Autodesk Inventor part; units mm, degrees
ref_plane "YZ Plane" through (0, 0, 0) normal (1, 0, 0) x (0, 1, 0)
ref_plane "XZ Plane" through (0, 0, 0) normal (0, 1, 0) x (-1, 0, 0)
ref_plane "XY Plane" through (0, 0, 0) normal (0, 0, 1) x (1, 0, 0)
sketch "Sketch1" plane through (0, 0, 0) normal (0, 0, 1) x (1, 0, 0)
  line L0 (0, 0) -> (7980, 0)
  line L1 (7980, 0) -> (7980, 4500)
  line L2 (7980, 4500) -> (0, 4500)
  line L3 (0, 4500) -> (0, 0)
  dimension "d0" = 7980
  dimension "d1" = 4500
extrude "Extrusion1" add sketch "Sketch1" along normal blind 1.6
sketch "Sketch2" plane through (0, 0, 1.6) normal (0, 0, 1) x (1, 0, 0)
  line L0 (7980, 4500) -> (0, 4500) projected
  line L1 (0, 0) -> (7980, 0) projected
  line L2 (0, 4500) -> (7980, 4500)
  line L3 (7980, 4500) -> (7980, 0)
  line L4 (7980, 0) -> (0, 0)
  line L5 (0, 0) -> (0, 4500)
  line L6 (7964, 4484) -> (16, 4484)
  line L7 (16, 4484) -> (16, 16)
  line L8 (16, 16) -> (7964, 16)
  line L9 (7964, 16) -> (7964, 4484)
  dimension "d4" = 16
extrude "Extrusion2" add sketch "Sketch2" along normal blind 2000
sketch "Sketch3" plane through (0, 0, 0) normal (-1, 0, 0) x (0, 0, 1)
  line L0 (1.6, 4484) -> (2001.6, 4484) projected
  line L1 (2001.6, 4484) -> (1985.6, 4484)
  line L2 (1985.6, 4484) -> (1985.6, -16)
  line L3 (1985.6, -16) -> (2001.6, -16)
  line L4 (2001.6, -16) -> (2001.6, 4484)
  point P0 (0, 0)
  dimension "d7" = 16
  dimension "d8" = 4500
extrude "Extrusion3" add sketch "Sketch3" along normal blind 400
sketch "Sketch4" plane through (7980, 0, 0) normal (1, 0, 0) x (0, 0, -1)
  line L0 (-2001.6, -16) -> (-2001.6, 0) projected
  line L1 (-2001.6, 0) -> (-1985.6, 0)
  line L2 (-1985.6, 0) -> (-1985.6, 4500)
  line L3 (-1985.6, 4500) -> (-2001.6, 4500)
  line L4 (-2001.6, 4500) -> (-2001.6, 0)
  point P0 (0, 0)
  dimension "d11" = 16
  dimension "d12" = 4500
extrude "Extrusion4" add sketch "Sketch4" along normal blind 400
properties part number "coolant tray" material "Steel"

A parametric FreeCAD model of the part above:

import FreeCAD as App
import Part
import Sketcher
Q = App.Units.Quantity

doc = App.newDocument("Part")
body = doc.addObject("PartDesign::Body", "Body")

sketch1 = body.newObject("Sketcher::SketchObject", "Sketch")
sketch1.AttachmentSupport = (doc.getObject("XY_Plane"), [""])
sketch1.MapMode = "FlatFace"
sketch1.addGeometry([
    Part.LineSegment(App.Vector(0, 4500, 0), App.Vector(0, 0, 0)),
    Part.LineSegment(App.Vector(0, 0, 0), App.Vector(7980, 0, 0)),
    Part.LineSegment(App.Vector(7980, 0, 0), App.Vector(7980, 4500, 0)),
    Part.LineSegment(App.Vector(7980, 4500, 0), App.Vector(0, 4500, 0)),
], False)
sketch1.addConstraint([
    Sketcher.Constraint("Coincident", 0, 2, 1, 1),
    Sketcher.Constraint("Coincident", 1, 2, 2, 1),
    Sketcher.Constraint("Coincident", 2, 2, 3, 1),
    Sketcher.Constraint("Coincident", 3, 2, 0, 1),
    Sketcher.Constraint("Vertical", 0),
    Sketcher.Constraint("Horizontal", 1),
    Sketcher.Constraint("Vertical", 2),
    Sketcher.Constraint("Horizontal", 3),
    Sketcher.Constraint("Coincident", 0, 2, -1, 1),
    Sketcher.Constraint("DistanceX", 1, 1, 1, 2, Q("7980 mm")),
    Sketcher.Constraint("DistanceY", 0, 2, 0, 1, Q("4500 mm")),
])
pad1 = body.newObject("PartDesign::Pad", "Pad")
pad1.Profile = sketch1
pad1.Length = 1.6

sketch2 = body.newObject("Sketcher::SketchObject", "Sketch001")
sketch2.AttachmentSupport = (doc.getObject("XY_Plane"), [""])
sketch2.MapMode = "FlatFace"
sketch2.AttachmentOffset = App.Placement(App.Vector(0, 0, 1.6), App.Rotation())
sketch2.addGeometry([
    Part.LineSegment(App.Vector(7980, 0, 0), App.Vector(7980, 4500, 0)),
    Part.LineSegment(App.Vector(7980, 4500, 0), App.Vector(0, 4500, 0)),
    Part.LineSegment(App.Vector(0, 4500, 0), App.Vector(0, 0, 0)),
    Part.LineSegment(App.Vector(0, 0, 0), App.Vector(7980, 0, 0)),
    Part.LineSegment(App.Vector(16, 4484, 0), App.Vector(7964, 4484, 0)),
    Part.LineSegment(App.Vector(7964, 4484, 0), App.Vector(7964, 16, 0)),
    Part.LineSegment(App.Vector(7964, 16, 0), App.Vector(16, 16, 0)),
    Part.LineSegment(App.Vector(16, 16, 0), App.Vector(16, 4484, 0)),
], False)
sketch2.addConstraint([
    Sketcher.Constraint("Coincident", 0, 2, 1, 1),
    Sketcher.Constraint("Coincident", 1, 2, 2, 1),
    Sketcher.Constraint("Coincident", 2, 2, 3, 1),
    Sketcher.Constraint("Coincident", 3, 2, 0, 1),
    Sketcher.Constraint("Coincident", 4, 2, 5, 1),
    Sketcher.Constraint("Coincident", 5, 2, 6, 1),
    Sketcher.Constraint("Coincident", 6, 2, 7, 1),
    Sketcher.Constraint("Coincident", 7, 2, 4, 1),
    Sketcher.Constraint("Vertical", 0),
    Sketcher.Constraint("Horizontal", 1),
    Sketcher.Constraint("Vertical", 2),
    Sketcher.Constraint("Horizontal", 3),
    Sketcher.Constraint("Horizontal", 4),
    Sketcher.Constraint("Vertical", 5),
    Sketcher.Constraint("Horizontal", 6),
    Sketcher.Constraint("Vertical", 7),
    Sketcher.Constraint("Coincident", 2, 2, -1, 1),
    Sketcher.Constraint("DistanceY", -1, 1, 5, 2, Q("16 mm")),
    Sketcher.Constraint("DistanceX", -1, 1, 6, 2, Q("16 mm")),
    Sketcher.Constraint("DistanceX", 4, 2, 0, 2, Q("16 mm")),
    Sketcher.Constraint("DistanceY", 4, 2, 0, 2, Q("16 mm")),
    Sketcher.Constraint("DistanceX", 1, 2, 1, 1, Q("7980 mm")),
    Sketcher.Constraint("DistanceY", 0, 1, 0, 2, Q("4500 mm")),
])
pad2 = body.newObject("PartDesign::Pad", "Pad001")
pad2.Profile = sketch2
pad2.Length = 2000

sketch3 = body.newObject("Sketcher::SketchObject", "Sketch002")
sketch3.AttachmentSupport = (doc.getObject("YZ_Plane"), [""])
sketch3.MapMode = "FlatFace"
sketch3.addGeometry([
    Part.LineSegment(App.Vector(4484, 2001.6, 0), App.Vector(4484, 1985.6, 0)),
    Part.LineSegment(App.Vector(4484, 1985.6, 0), App.Vector(-16, 1985.6, 0)),
    Part.LineSegment(App.Vector(-16, 1985.6, 0), App.Vector(-16, 2001.6, 0)),
    Part.LineSegment(App.Vector(-16, 2001.6, 0), App.Vector(4484, 2001.6, 0)),
], False)
sketch3.addConstraint([
    Sketcher.Constraint("Coincident", 0, 2, 1, 1),
    Sketcher.Constraint("Coincident", 1, 2, 2, 1),
    Sketcher.Constraint("Coincident", 2, 2, 3, 1),
    Sketcher.Constraint("Coincident", 3, 2, 0, 1),
    Sketcher.Constraint("Vertical", 0),
    Sketcher.Constraint("Horizontal", 1),
    Sketcher.Constraint("Vertical", 2),
    Sketcher.Constraint("Horizontal", 3),
    Sketcher.Constraint("DistanceX", 1, 2, 1, 1, Q("4500 mm")),
    Sketcher.Constraint("DistanceY", 0, 2, 0, 1, Q("16 mm")),
    Sketcher.Constraint("DistanceX", 1, 2, -1, 1, Q("16 mm")),
    Sketcher.Constraint("DistanceY", -1, 1, 0, 2, Q("1985.6 mm")),
])
pad3 = body.newObject("PartDesign::Pad", "Pad002")
pad3.Profile = sketch3
pad3.Length = 400
pad3.Reversed = True

sketch4 = body.newObject("Sketcher::SketchObject", "Sketch003")
sketch4.AttachmentSupport = (doc.getObject("YZ_Plane"), [""])
sketch4.MapMode = "FlatFace"
sketch4.AttachmentOffset = App.Placement(App.Vector(0, 0, 7980), App.Rotation())
sketch4.addGeometry([
    Part.LineSegment(App.Vector(4500, 2001.6, 0), App.Vector(0, 2001.6, 0)),
    Part.LineSegment(App.Vector(0, 2001.6, 0), App.Vector(0, 1985.6, 0)),
    Part.LineSegment(App.Vector(0, 1985.6, 0), App.Vector(4500, 1985.6, 0)),
    Part.LineSegment(App.Vector(4500, 1985.6, 0), App.Vector(4500, 2001.6, 0)),
], False)
sketch4.addConstraint([
    Sketcher.Constraint("Coincident", 0, 2, 1, 1),
    Sketcher.Constraint("Coincident", 1, 2, 2, 1),
    Sketcher.Constraint("Coincident", 2, 2, 3, 1),
    Sketcher.Constraint("Coincident", 3, 2, 0, 1),
    Sketcher.Constraint("Horizontal", 0),
    Sketcher.Constraint("Vertical", 1),
    Sketcher.Constraint("Horizontal", 2),
    Sketcher.Constraint("Vertical", 3),
    Sketcher.Constraint("PointOnObject", 0, 2, -2),
    Sketcher.Constraint("DistanceX", 0, 2, 0, 1, Q("4500 mm")),
    Sketcher.Constraint("DistanceY", 1, 2, 1, 1, Q("16 mm")),
    Sketcher.Constraint("DistanceY", -1, 1, 0, 2, Q("2001.6 mm")),
])
pad4 = body.newObject("PartDesign::Pad", "Pad003")
pad4.Profile = sketch4
pad4.Length = 400

doc.recompute()
